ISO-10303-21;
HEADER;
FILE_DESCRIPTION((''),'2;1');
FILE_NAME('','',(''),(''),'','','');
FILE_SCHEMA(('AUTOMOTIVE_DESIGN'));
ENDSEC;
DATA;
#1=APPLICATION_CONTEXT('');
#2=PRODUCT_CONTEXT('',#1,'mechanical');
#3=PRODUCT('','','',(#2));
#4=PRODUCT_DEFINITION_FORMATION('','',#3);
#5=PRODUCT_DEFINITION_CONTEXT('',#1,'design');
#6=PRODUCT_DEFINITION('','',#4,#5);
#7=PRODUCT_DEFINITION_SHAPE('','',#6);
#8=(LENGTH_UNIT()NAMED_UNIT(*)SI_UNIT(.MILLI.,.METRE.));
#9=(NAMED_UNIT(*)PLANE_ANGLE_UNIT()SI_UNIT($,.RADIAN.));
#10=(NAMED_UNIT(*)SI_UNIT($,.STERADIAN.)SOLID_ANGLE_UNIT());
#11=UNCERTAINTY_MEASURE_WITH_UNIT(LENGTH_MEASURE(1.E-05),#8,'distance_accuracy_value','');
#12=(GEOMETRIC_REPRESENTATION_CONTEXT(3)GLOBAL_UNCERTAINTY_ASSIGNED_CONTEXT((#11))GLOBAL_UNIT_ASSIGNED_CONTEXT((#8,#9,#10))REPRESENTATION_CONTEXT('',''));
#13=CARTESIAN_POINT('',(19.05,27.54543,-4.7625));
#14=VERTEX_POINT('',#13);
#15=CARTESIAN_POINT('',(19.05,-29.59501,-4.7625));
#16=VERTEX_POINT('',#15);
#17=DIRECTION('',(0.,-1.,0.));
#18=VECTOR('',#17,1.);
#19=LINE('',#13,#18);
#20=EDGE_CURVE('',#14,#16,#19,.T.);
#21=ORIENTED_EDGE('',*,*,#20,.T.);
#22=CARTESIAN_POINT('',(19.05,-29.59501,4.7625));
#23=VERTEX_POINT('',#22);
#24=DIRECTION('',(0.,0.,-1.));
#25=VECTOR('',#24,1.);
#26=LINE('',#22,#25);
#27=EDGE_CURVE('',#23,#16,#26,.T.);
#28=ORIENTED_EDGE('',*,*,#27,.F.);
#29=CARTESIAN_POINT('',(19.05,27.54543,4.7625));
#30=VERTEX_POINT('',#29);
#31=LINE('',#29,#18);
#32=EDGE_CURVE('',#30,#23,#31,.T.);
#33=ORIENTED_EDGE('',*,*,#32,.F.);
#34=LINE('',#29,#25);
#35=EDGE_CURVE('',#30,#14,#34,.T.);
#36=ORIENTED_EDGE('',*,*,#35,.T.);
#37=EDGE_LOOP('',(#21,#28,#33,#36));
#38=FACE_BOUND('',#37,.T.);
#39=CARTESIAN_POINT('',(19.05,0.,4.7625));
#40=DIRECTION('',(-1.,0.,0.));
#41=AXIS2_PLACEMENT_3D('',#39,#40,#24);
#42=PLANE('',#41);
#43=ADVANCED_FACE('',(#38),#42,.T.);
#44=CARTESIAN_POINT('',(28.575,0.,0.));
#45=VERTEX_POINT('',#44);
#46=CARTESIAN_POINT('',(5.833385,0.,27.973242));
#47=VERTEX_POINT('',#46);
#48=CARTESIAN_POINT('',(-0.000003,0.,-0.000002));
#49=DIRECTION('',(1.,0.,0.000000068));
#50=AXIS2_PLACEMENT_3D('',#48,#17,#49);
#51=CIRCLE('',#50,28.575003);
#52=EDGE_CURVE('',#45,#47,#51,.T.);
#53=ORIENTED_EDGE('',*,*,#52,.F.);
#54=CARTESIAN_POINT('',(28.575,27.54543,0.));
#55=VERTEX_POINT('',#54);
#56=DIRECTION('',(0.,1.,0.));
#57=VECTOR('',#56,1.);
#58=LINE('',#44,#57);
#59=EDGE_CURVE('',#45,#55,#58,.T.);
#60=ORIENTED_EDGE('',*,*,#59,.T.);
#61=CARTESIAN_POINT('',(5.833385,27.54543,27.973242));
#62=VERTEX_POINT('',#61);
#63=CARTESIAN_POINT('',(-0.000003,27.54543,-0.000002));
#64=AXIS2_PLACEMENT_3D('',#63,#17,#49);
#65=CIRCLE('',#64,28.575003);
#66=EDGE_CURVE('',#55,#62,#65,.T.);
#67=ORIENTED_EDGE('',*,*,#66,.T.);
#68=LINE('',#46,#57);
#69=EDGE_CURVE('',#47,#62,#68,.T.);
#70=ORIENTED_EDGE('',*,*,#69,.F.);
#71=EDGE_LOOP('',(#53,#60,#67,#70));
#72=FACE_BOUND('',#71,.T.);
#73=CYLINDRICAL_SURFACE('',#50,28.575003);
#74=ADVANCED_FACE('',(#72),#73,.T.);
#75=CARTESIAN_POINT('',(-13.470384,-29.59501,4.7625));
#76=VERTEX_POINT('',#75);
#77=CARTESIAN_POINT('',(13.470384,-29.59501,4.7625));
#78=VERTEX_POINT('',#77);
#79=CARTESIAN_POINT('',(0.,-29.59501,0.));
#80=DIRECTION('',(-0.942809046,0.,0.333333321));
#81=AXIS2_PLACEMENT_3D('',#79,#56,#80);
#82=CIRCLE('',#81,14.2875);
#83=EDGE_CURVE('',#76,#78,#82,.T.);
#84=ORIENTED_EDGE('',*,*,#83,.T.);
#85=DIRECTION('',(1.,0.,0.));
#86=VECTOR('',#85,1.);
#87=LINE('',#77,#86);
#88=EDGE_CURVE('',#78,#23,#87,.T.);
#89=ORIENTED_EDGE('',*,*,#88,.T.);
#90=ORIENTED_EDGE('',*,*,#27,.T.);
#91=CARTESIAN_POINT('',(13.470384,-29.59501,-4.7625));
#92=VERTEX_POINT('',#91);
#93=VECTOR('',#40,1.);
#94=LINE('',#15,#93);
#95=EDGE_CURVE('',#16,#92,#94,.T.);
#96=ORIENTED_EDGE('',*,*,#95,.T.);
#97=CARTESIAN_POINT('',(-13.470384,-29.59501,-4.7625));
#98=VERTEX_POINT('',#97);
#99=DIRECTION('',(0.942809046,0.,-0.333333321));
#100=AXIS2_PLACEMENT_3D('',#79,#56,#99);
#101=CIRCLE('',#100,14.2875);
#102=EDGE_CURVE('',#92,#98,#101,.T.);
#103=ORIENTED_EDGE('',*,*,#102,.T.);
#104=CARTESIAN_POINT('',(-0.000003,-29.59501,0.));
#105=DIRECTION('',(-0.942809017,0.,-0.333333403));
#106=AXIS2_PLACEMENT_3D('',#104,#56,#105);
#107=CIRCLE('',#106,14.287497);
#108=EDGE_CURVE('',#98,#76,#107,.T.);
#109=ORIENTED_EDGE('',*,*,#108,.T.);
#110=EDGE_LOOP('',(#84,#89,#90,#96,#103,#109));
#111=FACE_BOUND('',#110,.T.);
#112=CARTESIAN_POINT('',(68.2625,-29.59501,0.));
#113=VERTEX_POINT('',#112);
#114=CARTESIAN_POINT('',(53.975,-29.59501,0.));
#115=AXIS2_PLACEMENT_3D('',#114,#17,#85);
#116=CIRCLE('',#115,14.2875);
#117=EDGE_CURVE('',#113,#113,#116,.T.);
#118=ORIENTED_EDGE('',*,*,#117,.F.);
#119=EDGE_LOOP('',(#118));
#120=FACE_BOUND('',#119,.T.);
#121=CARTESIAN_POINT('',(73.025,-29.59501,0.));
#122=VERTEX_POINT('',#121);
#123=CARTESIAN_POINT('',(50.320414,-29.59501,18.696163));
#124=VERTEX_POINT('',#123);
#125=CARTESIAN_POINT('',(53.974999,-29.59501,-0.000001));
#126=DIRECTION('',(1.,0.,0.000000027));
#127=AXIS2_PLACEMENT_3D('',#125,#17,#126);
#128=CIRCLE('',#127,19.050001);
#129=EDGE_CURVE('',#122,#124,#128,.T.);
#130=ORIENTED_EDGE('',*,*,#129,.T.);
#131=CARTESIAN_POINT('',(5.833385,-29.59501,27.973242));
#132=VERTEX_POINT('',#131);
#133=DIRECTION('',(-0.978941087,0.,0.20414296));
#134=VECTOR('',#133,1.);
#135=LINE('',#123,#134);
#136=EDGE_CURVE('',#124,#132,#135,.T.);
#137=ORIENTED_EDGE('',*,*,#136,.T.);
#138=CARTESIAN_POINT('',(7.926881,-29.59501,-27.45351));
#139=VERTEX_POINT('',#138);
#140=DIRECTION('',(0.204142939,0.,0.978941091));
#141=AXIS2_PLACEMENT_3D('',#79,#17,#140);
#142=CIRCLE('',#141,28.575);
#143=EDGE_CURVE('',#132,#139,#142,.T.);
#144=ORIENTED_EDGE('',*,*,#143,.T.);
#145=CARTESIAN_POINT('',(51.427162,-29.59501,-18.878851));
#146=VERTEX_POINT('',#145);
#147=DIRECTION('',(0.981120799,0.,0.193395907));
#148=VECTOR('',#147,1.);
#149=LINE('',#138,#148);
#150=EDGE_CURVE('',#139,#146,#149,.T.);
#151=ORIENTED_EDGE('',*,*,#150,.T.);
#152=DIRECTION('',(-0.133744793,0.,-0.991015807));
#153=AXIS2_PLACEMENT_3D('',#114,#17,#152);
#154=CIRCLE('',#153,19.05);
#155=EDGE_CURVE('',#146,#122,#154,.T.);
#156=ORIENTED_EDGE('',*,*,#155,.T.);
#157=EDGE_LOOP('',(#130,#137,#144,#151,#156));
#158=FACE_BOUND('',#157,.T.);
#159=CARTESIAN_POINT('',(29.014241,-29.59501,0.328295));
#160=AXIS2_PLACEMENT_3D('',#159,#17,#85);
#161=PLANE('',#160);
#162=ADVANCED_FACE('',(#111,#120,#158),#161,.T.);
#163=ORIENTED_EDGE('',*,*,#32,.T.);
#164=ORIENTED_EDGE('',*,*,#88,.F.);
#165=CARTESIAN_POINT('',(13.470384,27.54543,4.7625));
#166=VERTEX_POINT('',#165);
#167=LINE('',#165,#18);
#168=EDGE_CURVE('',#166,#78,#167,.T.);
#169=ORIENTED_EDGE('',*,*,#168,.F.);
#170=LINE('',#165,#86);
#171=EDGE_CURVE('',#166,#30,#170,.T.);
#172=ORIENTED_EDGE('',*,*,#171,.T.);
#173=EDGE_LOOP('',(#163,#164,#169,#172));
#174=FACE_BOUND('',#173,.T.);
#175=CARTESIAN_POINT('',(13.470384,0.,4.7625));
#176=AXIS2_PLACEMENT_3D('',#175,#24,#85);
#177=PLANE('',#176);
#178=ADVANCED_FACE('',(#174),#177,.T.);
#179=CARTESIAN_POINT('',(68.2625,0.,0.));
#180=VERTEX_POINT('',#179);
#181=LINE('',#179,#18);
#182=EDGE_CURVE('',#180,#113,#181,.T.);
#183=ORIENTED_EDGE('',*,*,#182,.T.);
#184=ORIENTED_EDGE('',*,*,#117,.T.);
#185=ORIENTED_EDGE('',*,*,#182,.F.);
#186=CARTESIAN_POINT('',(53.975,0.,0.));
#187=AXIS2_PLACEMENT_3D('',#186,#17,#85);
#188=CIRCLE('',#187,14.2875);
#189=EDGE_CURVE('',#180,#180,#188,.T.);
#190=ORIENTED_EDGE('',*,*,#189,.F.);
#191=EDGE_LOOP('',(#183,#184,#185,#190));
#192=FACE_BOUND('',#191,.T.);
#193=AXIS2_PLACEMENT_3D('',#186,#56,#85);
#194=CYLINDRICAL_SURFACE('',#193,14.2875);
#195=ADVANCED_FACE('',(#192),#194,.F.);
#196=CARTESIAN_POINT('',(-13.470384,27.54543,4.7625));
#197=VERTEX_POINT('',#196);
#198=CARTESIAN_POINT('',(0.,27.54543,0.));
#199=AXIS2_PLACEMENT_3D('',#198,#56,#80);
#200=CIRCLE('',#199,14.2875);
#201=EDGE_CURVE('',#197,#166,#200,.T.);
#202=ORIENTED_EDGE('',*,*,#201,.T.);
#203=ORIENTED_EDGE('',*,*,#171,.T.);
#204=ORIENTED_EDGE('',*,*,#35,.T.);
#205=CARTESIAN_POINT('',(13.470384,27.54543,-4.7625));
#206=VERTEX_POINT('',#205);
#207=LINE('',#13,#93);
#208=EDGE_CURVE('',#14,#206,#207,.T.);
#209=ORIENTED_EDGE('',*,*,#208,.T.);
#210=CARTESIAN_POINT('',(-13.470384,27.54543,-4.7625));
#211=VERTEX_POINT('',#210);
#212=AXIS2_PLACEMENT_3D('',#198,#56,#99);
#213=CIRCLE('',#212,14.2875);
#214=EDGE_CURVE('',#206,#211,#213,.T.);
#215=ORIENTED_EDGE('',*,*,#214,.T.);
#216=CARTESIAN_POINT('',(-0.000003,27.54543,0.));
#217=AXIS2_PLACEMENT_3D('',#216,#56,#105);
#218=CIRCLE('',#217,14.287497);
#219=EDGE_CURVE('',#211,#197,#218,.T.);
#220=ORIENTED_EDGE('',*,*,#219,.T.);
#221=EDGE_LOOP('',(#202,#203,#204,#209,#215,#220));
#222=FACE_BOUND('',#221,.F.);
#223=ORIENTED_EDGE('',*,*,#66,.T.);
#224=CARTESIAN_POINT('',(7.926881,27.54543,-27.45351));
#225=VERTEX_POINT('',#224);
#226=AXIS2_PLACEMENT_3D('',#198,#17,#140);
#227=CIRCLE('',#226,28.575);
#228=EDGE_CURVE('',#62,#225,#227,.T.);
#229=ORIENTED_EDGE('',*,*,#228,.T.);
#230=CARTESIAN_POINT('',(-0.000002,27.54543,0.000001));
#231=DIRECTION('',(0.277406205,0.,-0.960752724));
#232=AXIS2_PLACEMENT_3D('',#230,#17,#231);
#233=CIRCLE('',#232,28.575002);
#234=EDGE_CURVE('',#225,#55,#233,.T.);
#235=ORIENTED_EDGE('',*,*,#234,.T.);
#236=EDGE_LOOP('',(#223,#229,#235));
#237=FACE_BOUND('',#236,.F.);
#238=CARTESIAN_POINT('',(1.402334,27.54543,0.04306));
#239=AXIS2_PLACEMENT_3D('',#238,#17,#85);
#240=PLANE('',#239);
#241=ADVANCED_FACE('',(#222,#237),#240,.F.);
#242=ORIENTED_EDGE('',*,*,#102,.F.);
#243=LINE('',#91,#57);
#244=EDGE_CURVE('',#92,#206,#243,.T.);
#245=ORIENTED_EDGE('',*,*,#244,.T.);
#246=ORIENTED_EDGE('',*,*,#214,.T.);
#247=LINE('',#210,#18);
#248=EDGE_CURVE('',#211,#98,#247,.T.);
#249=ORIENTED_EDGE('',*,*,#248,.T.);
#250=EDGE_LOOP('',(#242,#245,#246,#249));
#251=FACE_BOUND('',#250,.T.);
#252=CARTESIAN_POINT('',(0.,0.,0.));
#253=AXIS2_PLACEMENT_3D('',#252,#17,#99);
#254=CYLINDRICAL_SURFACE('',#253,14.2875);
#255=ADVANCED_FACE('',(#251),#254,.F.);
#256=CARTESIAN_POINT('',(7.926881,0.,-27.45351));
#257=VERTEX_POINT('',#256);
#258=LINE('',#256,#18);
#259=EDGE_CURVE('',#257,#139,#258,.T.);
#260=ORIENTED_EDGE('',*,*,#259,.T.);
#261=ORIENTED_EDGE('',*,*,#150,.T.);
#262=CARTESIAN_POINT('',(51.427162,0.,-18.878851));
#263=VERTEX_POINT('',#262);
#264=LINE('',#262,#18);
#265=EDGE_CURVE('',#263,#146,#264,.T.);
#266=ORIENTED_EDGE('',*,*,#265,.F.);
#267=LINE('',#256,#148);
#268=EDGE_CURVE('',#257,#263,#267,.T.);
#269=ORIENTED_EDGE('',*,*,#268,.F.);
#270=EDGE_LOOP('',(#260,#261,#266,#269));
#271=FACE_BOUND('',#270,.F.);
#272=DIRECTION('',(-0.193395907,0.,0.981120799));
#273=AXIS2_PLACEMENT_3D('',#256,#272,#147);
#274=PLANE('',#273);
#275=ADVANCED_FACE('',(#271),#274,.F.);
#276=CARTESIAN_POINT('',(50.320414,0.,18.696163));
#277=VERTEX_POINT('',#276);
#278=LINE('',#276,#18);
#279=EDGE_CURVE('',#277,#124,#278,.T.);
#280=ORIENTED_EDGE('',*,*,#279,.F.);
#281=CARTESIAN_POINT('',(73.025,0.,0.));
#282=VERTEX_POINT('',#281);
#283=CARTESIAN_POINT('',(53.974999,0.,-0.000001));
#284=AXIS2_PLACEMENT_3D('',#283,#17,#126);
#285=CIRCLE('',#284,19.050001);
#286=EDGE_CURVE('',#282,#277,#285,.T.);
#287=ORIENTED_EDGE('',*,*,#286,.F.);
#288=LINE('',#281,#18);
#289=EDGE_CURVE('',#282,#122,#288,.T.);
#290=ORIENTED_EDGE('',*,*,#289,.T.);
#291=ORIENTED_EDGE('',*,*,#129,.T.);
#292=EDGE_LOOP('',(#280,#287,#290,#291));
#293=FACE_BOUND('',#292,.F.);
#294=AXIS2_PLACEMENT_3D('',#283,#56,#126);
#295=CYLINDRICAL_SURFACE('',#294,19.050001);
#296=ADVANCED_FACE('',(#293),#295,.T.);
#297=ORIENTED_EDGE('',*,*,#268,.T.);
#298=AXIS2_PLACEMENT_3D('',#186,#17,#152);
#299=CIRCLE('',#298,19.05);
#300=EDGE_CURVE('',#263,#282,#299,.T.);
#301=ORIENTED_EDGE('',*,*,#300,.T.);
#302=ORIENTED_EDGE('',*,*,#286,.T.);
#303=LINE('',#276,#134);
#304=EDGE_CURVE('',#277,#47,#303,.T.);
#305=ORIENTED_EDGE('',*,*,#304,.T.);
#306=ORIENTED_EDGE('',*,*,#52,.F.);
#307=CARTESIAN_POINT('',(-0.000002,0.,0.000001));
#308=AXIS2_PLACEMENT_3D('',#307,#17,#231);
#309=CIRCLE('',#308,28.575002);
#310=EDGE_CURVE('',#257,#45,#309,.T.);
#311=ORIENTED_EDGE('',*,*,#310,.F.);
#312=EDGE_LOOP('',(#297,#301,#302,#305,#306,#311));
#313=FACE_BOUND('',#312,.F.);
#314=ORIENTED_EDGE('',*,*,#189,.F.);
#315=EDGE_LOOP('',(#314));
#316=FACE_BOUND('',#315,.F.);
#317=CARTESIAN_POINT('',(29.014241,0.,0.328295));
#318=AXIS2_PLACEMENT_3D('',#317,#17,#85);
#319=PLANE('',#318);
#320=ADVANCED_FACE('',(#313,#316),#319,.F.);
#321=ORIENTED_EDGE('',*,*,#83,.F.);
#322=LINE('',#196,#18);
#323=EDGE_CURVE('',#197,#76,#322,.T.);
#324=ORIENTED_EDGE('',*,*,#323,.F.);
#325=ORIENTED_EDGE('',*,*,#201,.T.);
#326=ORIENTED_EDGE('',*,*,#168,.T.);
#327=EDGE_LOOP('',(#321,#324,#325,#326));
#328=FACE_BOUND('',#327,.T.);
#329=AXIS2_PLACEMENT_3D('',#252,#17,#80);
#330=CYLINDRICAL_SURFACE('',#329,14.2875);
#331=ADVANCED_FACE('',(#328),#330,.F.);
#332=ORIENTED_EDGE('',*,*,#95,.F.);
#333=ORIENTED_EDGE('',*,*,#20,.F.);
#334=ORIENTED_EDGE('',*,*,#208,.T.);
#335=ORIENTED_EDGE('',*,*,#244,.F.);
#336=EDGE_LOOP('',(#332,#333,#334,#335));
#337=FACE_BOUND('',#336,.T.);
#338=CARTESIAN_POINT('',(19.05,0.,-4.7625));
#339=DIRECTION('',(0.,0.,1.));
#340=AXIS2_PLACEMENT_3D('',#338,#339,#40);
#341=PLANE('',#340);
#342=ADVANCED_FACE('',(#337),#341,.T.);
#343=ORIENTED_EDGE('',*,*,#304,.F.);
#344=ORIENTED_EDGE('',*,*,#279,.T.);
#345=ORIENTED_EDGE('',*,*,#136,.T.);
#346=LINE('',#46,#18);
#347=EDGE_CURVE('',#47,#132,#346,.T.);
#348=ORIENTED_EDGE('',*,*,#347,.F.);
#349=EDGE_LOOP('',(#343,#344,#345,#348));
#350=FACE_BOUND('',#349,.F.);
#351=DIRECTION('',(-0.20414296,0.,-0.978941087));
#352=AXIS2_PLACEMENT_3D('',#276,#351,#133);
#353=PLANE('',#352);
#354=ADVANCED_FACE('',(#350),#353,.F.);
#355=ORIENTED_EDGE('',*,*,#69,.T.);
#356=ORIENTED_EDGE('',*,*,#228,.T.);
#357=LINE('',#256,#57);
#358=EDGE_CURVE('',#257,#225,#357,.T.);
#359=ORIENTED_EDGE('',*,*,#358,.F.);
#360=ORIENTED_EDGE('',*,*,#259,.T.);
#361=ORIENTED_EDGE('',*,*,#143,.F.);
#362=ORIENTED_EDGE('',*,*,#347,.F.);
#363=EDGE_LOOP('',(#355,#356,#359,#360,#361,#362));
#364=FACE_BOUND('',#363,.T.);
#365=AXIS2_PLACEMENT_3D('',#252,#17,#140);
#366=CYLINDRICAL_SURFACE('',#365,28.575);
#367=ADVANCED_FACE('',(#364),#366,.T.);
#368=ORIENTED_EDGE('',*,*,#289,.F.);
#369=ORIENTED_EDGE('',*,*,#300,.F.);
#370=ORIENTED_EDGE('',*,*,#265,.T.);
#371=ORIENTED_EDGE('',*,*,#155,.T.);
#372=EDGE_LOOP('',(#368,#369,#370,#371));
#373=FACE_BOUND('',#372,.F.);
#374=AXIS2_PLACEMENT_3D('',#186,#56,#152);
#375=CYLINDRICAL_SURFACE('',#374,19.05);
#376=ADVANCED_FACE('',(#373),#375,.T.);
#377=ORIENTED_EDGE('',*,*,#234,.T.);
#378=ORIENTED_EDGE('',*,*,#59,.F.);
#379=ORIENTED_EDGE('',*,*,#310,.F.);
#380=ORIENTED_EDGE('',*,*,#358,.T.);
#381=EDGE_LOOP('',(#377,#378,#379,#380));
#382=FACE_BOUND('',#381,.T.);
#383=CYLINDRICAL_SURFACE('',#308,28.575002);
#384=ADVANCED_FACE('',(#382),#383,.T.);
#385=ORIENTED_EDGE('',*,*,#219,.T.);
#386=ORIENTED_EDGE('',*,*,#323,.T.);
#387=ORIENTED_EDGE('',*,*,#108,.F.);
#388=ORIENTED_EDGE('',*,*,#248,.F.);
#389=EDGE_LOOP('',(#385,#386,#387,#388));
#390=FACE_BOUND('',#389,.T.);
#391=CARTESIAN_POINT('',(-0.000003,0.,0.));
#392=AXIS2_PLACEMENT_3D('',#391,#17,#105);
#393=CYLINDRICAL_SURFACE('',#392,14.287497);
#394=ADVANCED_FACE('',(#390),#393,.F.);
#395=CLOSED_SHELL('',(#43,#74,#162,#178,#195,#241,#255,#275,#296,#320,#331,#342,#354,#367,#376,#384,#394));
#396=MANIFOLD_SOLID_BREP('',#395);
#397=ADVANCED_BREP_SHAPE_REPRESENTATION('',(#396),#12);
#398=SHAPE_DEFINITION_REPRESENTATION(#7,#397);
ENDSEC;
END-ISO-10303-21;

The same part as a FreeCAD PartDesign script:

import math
import FreeCAD as App
import Part
import Sketcher
Q = App.Units.Quantity

doc = App.newDocument("Part")
body = doc.addObject("PartDesign::Body", "Body")

sketch1 = body.newObject("Sketcher::SketchObject", "Sketch")
sketch1.AttachmentSupport = (doc.getObject("XZ_Plane"), [""])
sketch1.MapMode = "FlatFace"
sketch1.addGeometry([
    Part.LineSegment(App.Vector(50, 19, 0), App.Vector(6, 28, 0)),
    Part.ArcOfCircle(Part.Circle(App.Vector(0, 0, 0), App.Vector(0, 0, 1), 29), math.radians(78), math.radians(286)),
    Part.LineSegment(App.Vector(8, -27, 0), App.Vector(51, -19, 0)),
    Part.ArcOfCircle(Part.Circle(App.Vector(54, 0, 0), App.Vector(0, 0, 1), 19), math.radians(-98), math.radians(0)),
    Part.ArcOfCircle(Part.Circle(App.Vector(54, 0, 0), App.Vector(0, 0, 1), 19), math.radians(0), math.radians(101)),
    Part.ArcOfCircle(Part.Circle(App.Vector(0, 0, 0), App.Vector(0, 0, 1), 14), math.radians(-161), math.radians(-19)),
    Part.ArcOfCircle(Part.Circle(App.Vector(0, 0, 0), App.Vector(0, 0, 1), 14), math.radians(161), math.radians(199)),
    Part.ArcOfCircle(Part.Circle(App.Vector(0, 0, 0), App.Vector(0, 0, 1), 14), math.radians(19), math.radians(161)),
    Part.LineSegment(App.Vector(13, 5, 0), App.Vector(19, 5, 0)),
    Part.LineSegment(App.Vector(19, 5, 0), App.Vector(19, -5, 0)),
    Part.LineSegment(App.Vector(19, -5, 0), App.Vector(13, -5, 0)),
    Part.Circle(App.Vector(54, 0, 0), App.Vector(0, 0, 1), 14),
], False)
sketch1.addConstraint([
    Sketcher.Constraint("Tangent", 0, 2, 1, 1),
    Sketcher.Constraint("Coincident", 1, 2, 2, 1),
    Sketcher.Constraint("Coincident", 2, 2, 3, 1),
    Sketcher.Constraint("Tangent", 3, 2, 4, 1),
    Sketcher.Constraint("Coincident", 4, 2, 0, 1),
    Sketcher.Constraint("Tangent", 5, 1, 6, 2),
    Sketcher.Constraint("Tangent", 6, 1, 7, 2),
    Sketcher.Constraint("Coincident", 7, 1, 8, 1),
    Sketcher.Constraint("Coincident", 8, 2, 9, 1),
    Sketcher.Constraint("Coincident", 9, 2, 10, 1),
    Sketcher.Constraint("Coincident", 10, 2, 5, 2),
    Sketcher.Constraint("Horizontal", 8),
    Sketcher.Constraint("Vertical", 9),
    Sketcher.Constraint("Horizontal", 10),
    Sketcher.Constraint("Coincident", 1, 3, -1, 1),
    Sketcher.Constraint("Coincident", 5, 3, -1, 1),
    Sketcher.Constraint("Coincident", 7, 3, -1, 1),
    Sketcher.Constraint("Coincident", 11, 3, 3, 3),
    Sketcher.Constraint("Equal", 3, 4),
    Sketcher.Constraint("Equal", 7, 11),
    Sketcher.Constraint("PointOnObject", 3, 3, -1),
    Sketcher.Constraint("PointOnObject", 3, 2, -1),
    Sketcher.Constraint("Horizontal", 6, 1, 7, 1),
    Sketcher.Constraint("Horizontal", 5, 1, 9, 2),
    Sketcher.Constraint("Vertical", 5, 1, 6, 1),
    Sketcher.Constraint("Radius", 3, Q("0.75 in")),
    Sketcher.Constraint("Diameter", 11, Q("1.125 in")),
    Sketcher.Constraint("Radius", 1, Q("1.125 in")),
    Sketcher.Constraint("DistanceY", 9, 2, 9, 1, Q("0.375 in")),
    Sketcher.Constraint("DistanceX", -1, 1, 8, 2, Q("0.75 in")),
    Sketcher.Constraint("DistanceX", -1, 1, 3, 3, Q("2.125 in")),
    Sketcher.Constraint("DistanceX", 0, 2, 7, 1, 7.636999),
    Sketcher.Constraint("DistanceX", -1, 1, 1, 2, 7.926881),
    Sketcher.Constraint("DistanceY", 2, 2, -1, 1, 18.878851),
])
pad1 = body.newObject("PartDesign::Pad", "Pad")
pad1.Profile = sketch1
pad1.Length = 29.59501

sketch2 = body.newObject("Sketcher::SketchObject", "Sketch001")
sketch2.AttachmentSupport = (doc.getObject("XZ_Plane"), [""])
sketch2.MapMode = "FlatFace"
sketch2.addGeometry([
    Part.ArcOfCircle(Part.Circle(App.Vector(0, 0, 0), App.Vector(0, 0, 1), 29), math.radians(-74), math.radians(0)),
    Part.ArcOfCircle(Part.Circle(App.Vector(0, 0, 0), App.Vector(0, 0, 1), 29), math.radians(0), math.radians(78)),
    Part.ArcOfCircle(Part.Circle(App.Vector(0, 0, 0), App.Vector(0, 0, 1), 29), math.radians(78), math.radians(286)),
    Part.ArcOfCircle(Part.Circle(App.Vector(0, 0, 0), App.Vector(0, 0, 1), 14), math.radians(-161), math.radians(-19)),
    Part.ArcOfCircle(Part.Circle(App.Vector(0, 0, 0), App.Vector(0, 0, 1), 14), math.radians(161), math.radians(199)),
    Part.ArcOfCircle(Part.Circle(App.Vector(0, 0, 0), App.Vector(0, 0, 1), 14), math.radians(19), math.radians(161)),
    Part.LineSegment(App.Vector(13, 5, 0), App.Vector(19, 5, 0)),
    Part.LineSegment(App.Vector(19, 5, 0), App.Vector(19, -5, 0)),
    Part.LineSegment(App.Vector(19, -5, 0), App.Vector(13, -5, 0)),
], False)
sketch2.addConstraint([
    Sketcher.Constraint("Tangent", 0, 2, 1, 1),
    Sketcher.Constraint("Tangent", 1, 2, 2, 1),
    Sketcher.Constraint("Tangent", 2, 2, 0, 1),
    Sketcher.Constraint("Tangent", 3, 1, 4, 2),
    Sketcher.Constraint("Tangent", 4, 1, 5, 2),
    Sketcher.Constraint("Coincident", 5, 1, 6, 1),
    Sketcher.Constraint("Coincident", 6, 2, 7, 1),
    Sketcher.Constraint("Coincident", 7, 2, 8, 1),
    Sketcher.Constraint("Coincident", 8, 2, 3, 2),
    Sketcher.Constraint("Horizontal", 6),
    Sketcher.Constraint("Vertical", 7),
    Sketcher.Constraint("Horizontal", 8),
    Sketcher.Constraint("Coincident", 0, 3, -1, 1),
    Sketcher.Constraint("Coincident", 3, 3, -1, 1),
    Sketcher.Constraint("Coincident", 5, 3, -1, 1),
    Sketcher.Constraint("PointOnObject", 0, 2, -1),
    Sketcher.Constraint("Horizontal", 4, 1, 5, 1),
    Sketcher.Constraint("Horizontal", 3, 1, 7, 2),
    Sketcher.Constraint("Vertical", 3, 1, 4, 1),
    Sketcher.Constraint("Radius", 0, Q("1.1250001 in")),
    Sketcher.Constraint("Radius", 3, Q("0.5625 in")),
    Sketcher.Constraint("DistanceY", 7, 2, 7, 1, Q("0.375 in")),
    Sketcher.Constraint("DistanceX", -1, 1, 6, 2, Q("0.75 in")),
    Sketcher.Constraint("DistanceY", -1, 1, 1, 2, 27.973242),
    Sketcher.Constraint("DistanceX", -1, 1, 2, 2, 7.926881),
])
pad2 = body.newObject("PartDesign::Pad", "Pad001")
pad2.Profile = sketch2
pad2.Length = 27.54543
pad2.Reversed = True

doc.recompute()
